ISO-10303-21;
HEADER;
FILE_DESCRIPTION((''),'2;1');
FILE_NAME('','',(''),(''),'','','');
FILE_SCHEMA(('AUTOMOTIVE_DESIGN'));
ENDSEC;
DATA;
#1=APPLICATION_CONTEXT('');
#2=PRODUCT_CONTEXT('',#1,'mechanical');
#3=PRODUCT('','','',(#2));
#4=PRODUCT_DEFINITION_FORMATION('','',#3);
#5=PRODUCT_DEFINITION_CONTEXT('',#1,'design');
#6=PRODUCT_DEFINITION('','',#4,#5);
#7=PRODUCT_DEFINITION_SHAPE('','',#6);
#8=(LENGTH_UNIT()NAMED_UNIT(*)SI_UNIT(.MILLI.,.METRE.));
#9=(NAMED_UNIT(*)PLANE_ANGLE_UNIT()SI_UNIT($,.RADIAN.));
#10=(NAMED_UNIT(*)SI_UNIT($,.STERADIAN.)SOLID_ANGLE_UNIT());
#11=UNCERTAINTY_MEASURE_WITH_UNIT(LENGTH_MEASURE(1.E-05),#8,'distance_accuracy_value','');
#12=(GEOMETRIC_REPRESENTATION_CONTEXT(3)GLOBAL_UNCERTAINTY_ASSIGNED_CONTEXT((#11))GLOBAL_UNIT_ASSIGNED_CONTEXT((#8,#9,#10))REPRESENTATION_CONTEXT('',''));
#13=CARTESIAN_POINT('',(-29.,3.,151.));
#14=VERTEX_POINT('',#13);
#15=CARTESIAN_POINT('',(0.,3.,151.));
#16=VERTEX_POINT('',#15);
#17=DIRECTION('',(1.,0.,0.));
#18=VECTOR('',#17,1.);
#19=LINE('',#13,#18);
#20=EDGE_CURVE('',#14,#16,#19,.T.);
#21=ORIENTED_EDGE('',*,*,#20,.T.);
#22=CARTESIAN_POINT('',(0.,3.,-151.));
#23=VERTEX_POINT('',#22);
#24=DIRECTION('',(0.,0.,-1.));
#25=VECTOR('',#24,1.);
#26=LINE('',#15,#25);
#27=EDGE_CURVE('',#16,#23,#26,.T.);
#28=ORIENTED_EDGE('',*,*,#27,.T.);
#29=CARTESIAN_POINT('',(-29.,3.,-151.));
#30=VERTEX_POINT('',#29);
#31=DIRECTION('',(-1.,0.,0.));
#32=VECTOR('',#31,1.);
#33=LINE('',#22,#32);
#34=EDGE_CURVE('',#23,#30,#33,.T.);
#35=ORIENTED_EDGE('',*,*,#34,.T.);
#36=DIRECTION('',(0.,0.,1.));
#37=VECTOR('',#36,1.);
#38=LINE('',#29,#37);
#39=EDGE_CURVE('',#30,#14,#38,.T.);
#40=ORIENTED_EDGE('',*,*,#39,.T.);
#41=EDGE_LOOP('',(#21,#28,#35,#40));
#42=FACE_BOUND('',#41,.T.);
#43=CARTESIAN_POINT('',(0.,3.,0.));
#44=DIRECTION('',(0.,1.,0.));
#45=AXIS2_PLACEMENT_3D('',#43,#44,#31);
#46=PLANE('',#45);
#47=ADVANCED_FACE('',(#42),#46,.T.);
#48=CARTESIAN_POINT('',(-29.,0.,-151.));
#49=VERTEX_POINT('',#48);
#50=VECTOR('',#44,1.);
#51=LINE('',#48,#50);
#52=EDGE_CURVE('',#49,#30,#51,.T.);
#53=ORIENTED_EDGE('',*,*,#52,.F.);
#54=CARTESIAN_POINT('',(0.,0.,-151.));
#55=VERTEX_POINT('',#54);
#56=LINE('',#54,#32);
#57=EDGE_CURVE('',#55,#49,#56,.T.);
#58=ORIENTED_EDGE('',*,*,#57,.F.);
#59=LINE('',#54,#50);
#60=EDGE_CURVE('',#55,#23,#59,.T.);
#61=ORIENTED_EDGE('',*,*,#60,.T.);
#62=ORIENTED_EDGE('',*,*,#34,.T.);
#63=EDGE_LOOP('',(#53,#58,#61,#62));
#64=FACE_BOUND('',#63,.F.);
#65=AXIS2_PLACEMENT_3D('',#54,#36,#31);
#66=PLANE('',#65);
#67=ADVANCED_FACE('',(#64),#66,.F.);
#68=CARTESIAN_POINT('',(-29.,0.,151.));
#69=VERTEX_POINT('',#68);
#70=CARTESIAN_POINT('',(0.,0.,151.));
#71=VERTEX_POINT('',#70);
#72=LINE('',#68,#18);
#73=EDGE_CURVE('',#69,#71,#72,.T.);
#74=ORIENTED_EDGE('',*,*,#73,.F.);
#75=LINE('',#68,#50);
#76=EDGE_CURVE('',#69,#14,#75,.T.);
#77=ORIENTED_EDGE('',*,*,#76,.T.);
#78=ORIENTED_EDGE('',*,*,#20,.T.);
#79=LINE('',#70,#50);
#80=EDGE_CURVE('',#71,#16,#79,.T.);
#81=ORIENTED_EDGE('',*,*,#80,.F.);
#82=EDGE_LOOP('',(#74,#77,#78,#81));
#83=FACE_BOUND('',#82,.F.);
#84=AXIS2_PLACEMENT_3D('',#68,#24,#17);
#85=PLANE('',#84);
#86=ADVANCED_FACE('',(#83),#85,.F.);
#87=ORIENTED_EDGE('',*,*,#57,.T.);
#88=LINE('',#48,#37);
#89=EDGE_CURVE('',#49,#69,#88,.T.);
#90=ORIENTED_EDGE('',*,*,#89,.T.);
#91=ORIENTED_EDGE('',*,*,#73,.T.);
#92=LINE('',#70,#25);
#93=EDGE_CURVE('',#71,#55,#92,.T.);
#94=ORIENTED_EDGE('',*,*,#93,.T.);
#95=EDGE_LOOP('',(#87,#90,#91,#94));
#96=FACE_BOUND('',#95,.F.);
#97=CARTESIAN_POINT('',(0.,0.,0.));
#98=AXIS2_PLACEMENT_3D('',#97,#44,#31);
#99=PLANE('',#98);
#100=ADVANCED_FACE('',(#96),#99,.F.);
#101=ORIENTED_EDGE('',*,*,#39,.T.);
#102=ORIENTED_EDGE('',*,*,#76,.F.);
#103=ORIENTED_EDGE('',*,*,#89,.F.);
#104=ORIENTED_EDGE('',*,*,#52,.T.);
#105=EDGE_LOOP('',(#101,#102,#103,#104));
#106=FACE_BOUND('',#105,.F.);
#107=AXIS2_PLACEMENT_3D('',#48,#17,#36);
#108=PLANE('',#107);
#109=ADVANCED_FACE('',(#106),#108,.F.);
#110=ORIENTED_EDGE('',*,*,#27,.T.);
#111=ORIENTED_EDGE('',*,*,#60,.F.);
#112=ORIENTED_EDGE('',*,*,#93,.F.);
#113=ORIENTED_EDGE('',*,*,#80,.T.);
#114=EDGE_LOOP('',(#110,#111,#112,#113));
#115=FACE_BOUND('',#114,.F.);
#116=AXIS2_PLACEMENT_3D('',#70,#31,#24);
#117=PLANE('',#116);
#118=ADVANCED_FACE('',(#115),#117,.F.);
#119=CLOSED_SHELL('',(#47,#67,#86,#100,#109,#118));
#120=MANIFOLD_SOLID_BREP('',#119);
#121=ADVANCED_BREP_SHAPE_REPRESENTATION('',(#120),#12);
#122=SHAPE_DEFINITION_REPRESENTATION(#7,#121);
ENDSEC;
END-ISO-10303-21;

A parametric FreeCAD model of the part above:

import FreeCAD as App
import Part
import Sketcher
Q = App.Units.Quantity

doc = App.newDocument("Part")
body = doc.addObject("PartDesign::Body", "Body")

sketch1 = body.newObject("Sketcher::SketchObject", "Sketch")
sketch1.AttachmentSupport = (doc.getObject("XZ_Plane"), [""])
sketch1.MapMode = "FlatFace"
sketch1.addGeometry([
    Part.LineSegment(App.Vector(-29, -151, 0), App.Vector(-29, 151, 0)),
    Part.LineSegment(App.Vector(-29, 151, 0), App.Vector(0, 151, 0)),
    Part.LineSegment(App.Vector(0, 151, 0), App.Vector(0, -151, 0)),
    Part.LineSegment(App.Vector(0, -151, 0), App.Vector(-29, -151, 0)),
], False)
sketch1.addConstraint([
    Sketcher.Constraint("Coincident", 0, 2, 1, 1),
    Sketcher.Constraint("Coincident", 1, 2, 2, 1),
    Sketcher.Constraint("Coincident", 2, 2, 3, 1),
    Sketcher.Constraint("Coincident", 3, 2, 0, 1),
    Sketcher.Constraint("Vertical", 0),
    Sketcher.Constraint("Horizontal", 1),
    Sketcher.Constraint("Vertical", 2),
    Sketcher.Constraint("Horizontal", 3),
    Sketcher.Constraint("Symmetric", 1, 2, 2, 2, -1, 1),
    Sketcher.Constraint("DistanceX", 1, 1, 1, 2, Q("29 mm")),
    Sketcher.Constraint("DistanceY", 0, 1, 0, 2, Q("302 mm")),
])
pad1 = body.newObject("PartDesign::Pad", "Pad")
pad1.Profile = sketch1
pad1.Length = 3
pad1.Reversed = True

doc.recompute()
